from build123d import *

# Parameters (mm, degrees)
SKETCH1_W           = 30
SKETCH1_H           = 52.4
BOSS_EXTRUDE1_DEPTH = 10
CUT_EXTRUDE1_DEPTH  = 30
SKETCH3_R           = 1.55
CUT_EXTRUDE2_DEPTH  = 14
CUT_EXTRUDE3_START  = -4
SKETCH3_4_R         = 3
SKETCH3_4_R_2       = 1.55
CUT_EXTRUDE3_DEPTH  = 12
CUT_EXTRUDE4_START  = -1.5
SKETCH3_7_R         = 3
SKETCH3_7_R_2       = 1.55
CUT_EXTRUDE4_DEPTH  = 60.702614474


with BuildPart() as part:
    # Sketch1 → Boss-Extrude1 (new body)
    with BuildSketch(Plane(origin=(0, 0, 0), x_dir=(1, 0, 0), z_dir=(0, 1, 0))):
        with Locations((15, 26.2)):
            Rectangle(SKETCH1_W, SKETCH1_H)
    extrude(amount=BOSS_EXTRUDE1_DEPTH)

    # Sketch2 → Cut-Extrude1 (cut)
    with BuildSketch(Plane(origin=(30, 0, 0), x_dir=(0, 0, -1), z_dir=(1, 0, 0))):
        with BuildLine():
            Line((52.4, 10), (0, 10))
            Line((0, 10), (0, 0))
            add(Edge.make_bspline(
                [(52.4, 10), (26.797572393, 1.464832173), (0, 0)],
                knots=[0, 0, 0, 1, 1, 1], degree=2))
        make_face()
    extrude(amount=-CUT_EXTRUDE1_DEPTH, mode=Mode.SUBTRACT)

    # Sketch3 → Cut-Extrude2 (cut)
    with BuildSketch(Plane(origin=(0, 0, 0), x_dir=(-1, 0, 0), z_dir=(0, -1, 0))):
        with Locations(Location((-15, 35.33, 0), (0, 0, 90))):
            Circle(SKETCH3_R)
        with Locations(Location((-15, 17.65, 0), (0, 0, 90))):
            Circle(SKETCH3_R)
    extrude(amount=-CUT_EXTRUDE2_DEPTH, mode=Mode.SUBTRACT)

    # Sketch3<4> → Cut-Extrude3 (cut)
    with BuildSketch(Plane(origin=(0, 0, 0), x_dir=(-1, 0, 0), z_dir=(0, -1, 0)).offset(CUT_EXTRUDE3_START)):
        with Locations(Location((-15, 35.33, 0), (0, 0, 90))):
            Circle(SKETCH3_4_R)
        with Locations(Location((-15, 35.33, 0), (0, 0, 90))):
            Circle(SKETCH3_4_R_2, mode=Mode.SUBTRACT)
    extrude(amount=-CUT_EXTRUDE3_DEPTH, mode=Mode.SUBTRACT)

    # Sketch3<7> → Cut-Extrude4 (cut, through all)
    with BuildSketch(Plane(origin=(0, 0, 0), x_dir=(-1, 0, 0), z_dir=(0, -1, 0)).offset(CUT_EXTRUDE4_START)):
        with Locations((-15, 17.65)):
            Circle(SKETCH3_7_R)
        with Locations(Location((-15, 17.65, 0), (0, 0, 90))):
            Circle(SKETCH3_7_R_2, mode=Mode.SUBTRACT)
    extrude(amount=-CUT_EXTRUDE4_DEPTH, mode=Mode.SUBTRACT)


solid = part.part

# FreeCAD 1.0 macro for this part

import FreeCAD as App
import Part
import Sketcher

V = App.Vector
Q = App.Units.Quantity

doc = App.newDocument("Part")
body = doc.addObject("PartDesign::Body", "Body")

# Sketch on XZ plane
sketch1 = doc.addObject("Sketcher::SketchObject", "Sketch")
body.addObject(sketch1)
sketch1.AttachmentSupport = (doc.XZ_Plane, [""])
sketch1.MapMode = "FlatFace"
sketch1.addGeometry(Part.LineSegment(V(0, -52, 0), V(0, 0, 0)), False)
sketch1.addGeometry(Part.LineSegment(V(0, 0, 0), V(30, 0, 0)), False)
sketch1.addGeometry(Part.LineSegment(V(30, 0, 0), V(30, -52, 0)), False)
sketch1.addGeometry(Part.LineSegment(V(30, -52, 0), V(0, -52, 0)), False)
sketch1.addConstraint(Sketcher.Constraint("Coincident", 0, 2, 1, 1))
sketch1.addConstraint(Sketcher.Constraint("Coincident", 1, 2, 2, 1))
sketch1.addConstraint(Sketcher.Constraint("Coincident", 2, 2, 3, 1))
sketch1.addConstraint(Sketcher.Constraint("Coincident", 3, 2, 0, 1))
sketch1.addConstraint(Sketcher.Constraint("Vertical", 0))
sketch1.addConstraint(Sketcher.Constraint("Horizontal", 1))
sketch1.addConstraint(Sketcher.Constraint("Vertical", 2))
sketch1.addConstraint(Sketcher.Constraint("Horizontal", 3))
sketch1.addConstraint(Sketcher.Constraint("Coincident", 0, 2, -1, 1))
sketch1.addConstraint(Sketcher.Constraint("DistanceX", 1, 1, 1, 2, Q("30 mm")))
sketch1.addConstraint(Sketcher.Constraint("DistanceY", 0, 1, 0, 2, Q("52.4 mm")))
pad1 = doc.addObject("PartDesign::Pad", "Pad")
body.addObject(pad1)
pad1.Profile = sketch1
pad1.Length = 10
pad1.Reversed = True

# Sketch on YZ plane
sketch2 = doc.addObject("Sketcher::SketchObject", "Sketch001")
body.addObject(sketch2)
sketch2.AttachmentSupport = (doc.YZ_Plane, [""])
sketch2.MapMode = "FlatFace"
sketch2.AttachmentOffset = App.Placement(V(0, 0, 30), App.Rotation())
sketch2.addGeometry(Part.LineSegment(V(10, -52.4, 0), V(10, 0, 0)), False)
sketch2.addGeometry(Part.LineSegment(V(10, 0, 0), V(0, 0, 0)), False)
sketch2.addGeometry(Part.BSplineCurve([V(10, -52.4, 0), V(1.464832, -26.797572, 0), V(0, 0, 0)], [3, 3], [0, 1], False, 2, [1, 1, 1], False), False)
sketch2.addConstraint(Sketcher.Constraint("Block", 2))
sketch2.addConstraint(Sketcher.Constraint("Coincident", 0, 2, 1, 1))
sketch2.addConstraint(Sketcher.Constraint("Coincident", 1, 2, 2, 2))
sketch2.addConstraint(Sketcher.Constraint("Coincident", 2, 1, 0, 1))
sketch2.addConstraint(Sketcher.Constraint("Vertical", 0))
sketch2.addConstraint(Sketcher.Constraint("Horizontal", 1))
pocket1 = doc.addObject("PartDesign::Pocket", "Pocket")
body.addObject(pocket1)
pocket1.Profile = sketch2
pocket1.Length = 30

# Sketch on XZ plane
sketch3 = doc.addObject("Sketcher::SketchObject", "Sketch002")
body.addObject(sketch3)
sketch3.AttachmentSupport = (doc.XZ_Plane, [""])
sketch3.MapMode = "FlatFace"
sketch3.addGeometry(Part.Circle(V(15, -35.3, 0), V(0, 0, 1), 1.6), False)
sketch3.addGeometry(Part.Circle(V(15, -17.6, 0), V(0, 0, 1), 1.6), False)
sketch3.addConstraint(Sketcher.Constraint("Equal", 0, 1))
sketch3.addConstraint(Sketcher.Constraint("Vertical", 0, 3, 1, 3))
sketch3.addConstraint(Sketcher.Constraint("Diameter", 0, Q("3.1 mm")))
sketch3.addConstraint(Sketcher.Constraint("DistanceX", -1, 1, 0, 3, Q("15 mm")))
sketch3.addConstraint(Sketcher.Constraint("DistanceY", 0, 3, -1, 1, Q("35.33 mm")))
sketch3.addConstraint(Sketcher.Constraint("DistanceY", 1, 3, -1, 1, Q("17.65 mm")))
pocket2 = doc.addObject("PartDesign::Pocket", "Pocket001")
body.addObject(pocket2)
pocket2.Profile = sketch3
pocket2.Length = 14

# Sketch on XZ plane
sketch4 = doc.addObject("Sketcher::SketchObject", "Sketch003")
body.addObject(sketch4)
sketch4.AttachmentSupport = (doc.XZ_Plane, [""])
sketch4.MapMode = "FlatFace"
sketch4.AttachmentOffset = App.Placement(V(0, 0, -4), App.Rotation())
sketch4.addGeometry(Part.Circle(V(15, -35.3, 0), V(0, 0, 1), 3), False)
sketch4.addGeometry(Part.Circle(V(15, -35.3, 0), V(0, 0, 1), 1.6), False)
sketch4.addConstraint(Sketcher.Constraint("Coincident", 1, 3, 0, 3))
sketch4.addConstraint(Sketcher.Constraint("Diameter", 0, Q("6 mm")))
sketch4.addConstraint(Sketcher.Constraint("Diameter", 1, Q("3.1 mm")))
sketch4.addConstraint(Sketcher.Constraint("DistanceX", -1, 1, 0, 3, Q("15 mm")))
sketch4.addConstraint(Sketcher.Constraint("DistanceY", 0, 3, -1, 1, Q("35.33 mm")))
pocket3 = doc.addObject("PartDesign::Pocket", "Pocket002")
body.addObject(pocket3)
pocket3.Profile = sketch4
pocket3.Length = 12

# Sketch on XZ plane
sketch5 = doc.addObject("Sketcher::SketchObject", "Sketch004")
body.addObject(sketch5)
sketch5.AttachmentSupport = (doc.XZ_Plane, [""])
sketch5.MapMode = "FlatFace"
sketch5.AttachmentOffset = App.Placement(V(0, 0, -1.5), App.Rotation())
sketch5.addGeometry(Part.Circle(V(15, -17.6, 0), V(0, 0, 1), 3), False)
sketch5.addGeometry(Part.Circle(V(15, -17.6, 0), V(0, 0, 1), 1.6), False)
sketch5.addConstraint(Sketcher.Constraint("Coincident", 1, 3, 0, 3))
sketch5.addConstraint(Sketcher.Constraint("Diameter", 0, Q("6 mm")))
sketch5.addConstraint(Sketcher.Constraint("Diameter", 1, Q("3.1 mm")))
sketch5.addConstraint(Sketcher.Constraint("DistanceX", -1, 1, 0, 3, Q("15 mm")))
sketch5.addConstraint(Sketcher.Constraint("DistanceY", 0, 3, -1, 1, Q("17.65 mm")))
pocket4 = doc.addObject("PartDesign::Pocket", "Pocket003")
body.addObject(pocket4)
pocket4.Profile = sketch5
pocket4.Type = "ThroughAll"

doc.recompute()
